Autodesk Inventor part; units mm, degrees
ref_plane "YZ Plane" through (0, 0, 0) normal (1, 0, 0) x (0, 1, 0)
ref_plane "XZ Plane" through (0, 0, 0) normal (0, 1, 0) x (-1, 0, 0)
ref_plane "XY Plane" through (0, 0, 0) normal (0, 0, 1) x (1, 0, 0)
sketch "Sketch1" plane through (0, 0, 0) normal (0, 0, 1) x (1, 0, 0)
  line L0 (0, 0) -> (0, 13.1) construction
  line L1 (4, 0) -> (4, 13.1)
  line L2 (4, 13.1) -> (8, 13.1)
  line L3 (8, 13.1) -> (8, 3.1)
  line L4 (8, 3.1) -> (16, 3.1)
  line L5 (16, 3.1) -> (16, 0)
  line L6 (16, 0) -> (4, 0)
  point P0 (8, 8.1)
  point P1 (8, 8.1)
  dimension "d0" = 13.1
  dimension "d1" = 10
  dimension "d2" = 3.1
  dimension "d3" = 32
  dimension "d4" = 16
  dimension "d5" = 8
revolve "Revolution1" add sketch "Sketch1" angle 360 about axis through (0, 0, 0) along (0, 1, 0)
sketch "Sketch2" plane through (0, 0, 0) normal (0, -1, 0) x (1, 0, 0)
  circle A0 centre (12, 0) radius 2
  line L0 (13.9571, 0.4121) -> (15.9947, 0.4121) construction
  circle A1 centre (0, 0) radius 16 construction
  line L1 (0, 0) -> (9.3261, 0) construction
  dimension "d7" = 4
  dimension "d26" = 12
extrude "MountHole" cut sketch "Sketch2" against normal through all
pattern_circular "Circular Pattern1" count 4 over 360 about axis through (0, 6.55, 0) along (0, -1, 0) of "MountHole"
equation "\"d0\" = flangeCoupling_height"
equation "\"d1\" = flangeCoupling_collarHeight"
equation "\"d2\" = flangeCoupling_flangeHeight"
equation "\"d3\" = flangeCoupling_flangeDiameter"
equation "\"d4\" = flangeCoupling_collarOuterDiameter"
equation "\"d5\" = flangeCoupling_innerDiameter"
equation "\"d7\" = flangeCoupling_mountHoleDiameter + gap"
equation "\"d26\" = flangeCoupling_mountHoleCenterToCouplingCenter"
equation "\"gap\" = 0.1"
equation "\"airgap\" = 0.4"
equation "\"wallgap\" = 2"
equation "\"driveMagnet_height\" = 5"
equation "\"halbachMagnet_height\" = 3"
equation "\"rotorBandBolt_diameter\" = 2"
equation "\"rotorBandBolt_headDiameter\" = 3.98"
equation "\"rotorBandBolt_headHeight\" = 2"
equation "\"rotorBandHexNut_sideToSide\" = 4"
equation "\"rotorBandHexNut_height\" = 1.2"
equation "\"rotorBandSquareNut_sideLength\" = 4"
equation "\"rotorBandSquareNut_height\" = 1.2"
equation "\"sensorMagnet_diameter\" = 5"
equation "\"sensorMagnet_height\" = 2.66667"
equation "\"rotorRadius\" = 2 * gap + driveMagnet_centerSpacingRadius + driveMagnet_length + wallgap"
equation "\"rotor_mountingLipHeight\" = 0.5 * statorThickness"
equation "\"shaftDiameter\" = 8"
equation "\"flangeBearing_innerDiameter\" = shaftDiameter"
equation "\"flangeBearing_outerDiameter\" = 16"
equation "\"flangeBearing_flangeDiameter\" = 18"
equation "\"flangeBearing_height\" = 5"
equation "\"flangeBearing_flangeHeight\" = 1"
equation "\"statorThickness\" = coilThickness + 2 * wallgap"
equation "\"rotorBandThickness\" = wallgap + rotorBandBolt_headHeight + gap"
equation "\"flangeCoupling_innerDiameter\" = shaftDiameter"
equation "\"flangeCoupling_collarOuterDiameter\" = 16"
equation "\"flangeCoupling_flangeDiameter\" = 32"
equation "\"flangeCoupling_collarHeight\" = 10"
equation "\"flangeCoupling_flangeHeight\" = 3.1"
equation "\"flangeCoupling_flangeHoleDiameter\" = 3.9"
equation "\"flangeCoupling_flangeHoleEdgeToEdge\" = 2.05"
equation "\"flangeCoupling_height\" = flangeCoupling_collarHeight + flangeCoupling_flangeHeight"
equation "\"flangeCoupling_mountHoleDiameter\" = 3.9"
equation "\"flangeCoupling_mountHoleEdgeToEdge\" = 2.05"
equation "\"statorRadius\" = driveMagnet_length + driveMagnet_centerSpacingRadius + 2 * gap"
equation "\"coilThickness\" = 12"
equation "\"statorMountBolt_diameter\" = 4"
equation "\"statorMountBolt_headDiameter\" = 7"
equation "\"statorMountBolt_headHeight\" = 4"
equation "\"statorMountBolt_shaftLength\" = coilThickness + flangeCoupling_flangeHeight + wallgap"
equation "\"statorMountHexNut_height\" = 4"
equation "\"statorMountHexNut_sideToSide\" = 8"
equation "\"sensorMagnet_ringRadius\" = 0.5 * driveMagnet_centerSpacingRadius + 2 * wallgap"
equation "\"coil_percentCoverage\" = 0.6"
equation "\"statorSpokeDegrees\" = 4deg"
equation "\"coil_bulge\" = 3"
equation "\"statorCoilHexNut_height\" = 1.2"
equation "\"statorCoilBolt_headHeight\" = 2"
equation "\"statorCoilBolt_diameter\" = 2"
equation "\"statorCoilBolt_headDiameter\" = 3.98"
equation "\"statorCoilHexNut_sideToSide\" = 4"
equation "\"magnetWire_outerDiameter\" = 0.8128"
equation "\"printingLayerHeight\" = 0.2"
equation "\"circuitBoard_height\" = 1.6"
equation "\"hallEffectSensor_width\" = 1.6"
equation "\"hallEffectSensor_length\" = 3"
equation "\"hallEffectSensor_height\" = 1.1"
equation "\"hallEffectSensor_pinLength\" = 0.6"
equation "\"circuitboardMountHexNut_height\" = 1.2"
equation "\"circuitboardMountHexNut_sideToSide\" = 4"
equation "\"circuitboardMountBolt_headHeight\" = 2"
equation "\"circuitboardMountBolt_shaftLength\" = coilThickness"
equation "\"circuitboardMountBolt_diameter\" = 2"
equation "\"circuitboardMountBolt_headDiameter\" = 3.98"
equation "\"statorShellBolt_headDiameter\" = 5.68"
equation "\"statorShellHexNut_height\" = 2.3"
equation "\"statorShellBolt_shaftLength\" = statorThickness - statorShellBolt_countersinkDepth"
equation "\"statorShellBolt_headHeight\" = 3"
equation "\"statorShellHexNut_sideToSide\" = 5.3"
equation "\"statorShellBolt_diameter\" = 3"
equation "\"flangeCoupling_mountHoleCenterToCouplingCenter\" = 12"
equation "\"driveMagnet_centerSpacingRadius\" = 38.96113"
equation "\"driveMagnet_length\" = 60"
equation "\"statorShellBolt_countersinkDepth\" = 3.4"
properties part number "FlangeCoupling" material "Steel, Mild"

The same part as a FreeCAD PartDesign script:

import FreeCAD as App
import Part
import Sketcher


def add_polygon(sketch, points):
    """Adds a closed chain of lines whose ends are joined by coincident constraints."""
    first, n = sketch.GeometryCount, len(points)
    for a, b in zip(points, points[1:] + points[:1]):
        sketch.addGeometry(Part.LineSegment(App.Vector(*a, 0), App.Vector(*b, 0)), False)
    for i in range(n):
        sketch.addConstraint(Sketcher.Constraint("Coincident", first + i, 2, first + (i + 1) % n, 1))

doc = App.newDocument("Part")
body = doc.addObject("PartDesign::Body", "Body")

sketch1 = body.newObject("Sketcher::SketchObject", "Sketch")
sketch1.AttachmentSupport = (doc.getObject("XY_Plane"), [""])
sketch1.MapMode = "FlatFace"
add_polygon(sketch1, [(4, 13.1), (4, 0), (16, 0), (16, 3.1), (8, 3.1), (8, 13.1)])
sketch1.addConstraint(Sketcher.Constraint("Vertical", 0))
sketch1.addConstraint(Sketcher.Constraint("Horizontal", 1))
sketch1.addConstraint(Sketcher.Constraint("Vertical", 2))
sketch1.addConstraint(Sketcher.Constraint("Horizontal", 3))
sketch1.addConstraint(Sketcher.Constraint("Vertical", 4))
sketch1.addConstraint(Sketcher.Constraint("Horizontal", 5))
sketch1.addConstraint(Sketcher.Constraint("PointOnObject", 0, 2, -1))
sketch1.addConstraint(Sketcher.Constraint("DistanceX", 3, 2, 3, 1, 8.0))
sketch1.addConstraint(Sketcher.Constraint("DistanceY", 4, 1, 4, 2, 10.0))
sketch1.addConstraint(Sketcher.Constraint("DistanceY", 0, 2, 0, 1, 13.1))
sketch1.addConstraint(Sketcher.Constraint("DistanceX", -1, 1, 1, 2, 16.0))
sketch1.addConstraint(Sketcher.Constraint("DistanceX", 1, 1, 1, 2, 12.0))
revolution = body.newObject("PartDesign::Revolution", "Revolution")
revolution.Profile = sketch1
revolution.ReferenceAxis = (sketch1, ["V_Axis"])
revolution.Angle = 360

sketch2 = body.newObject("Sketcher::SketchObject", "Sketch001")
sketch2.AttachmentSupport = (doc.getObject("XZ_Plane"), [""])
sketch2.MapMode = "FlatFace"
sketch2.addGeometry(Part.Circle(App.Vector(12, 0, 0), App.Vector(0, 0, 1), 2), False)
sketch2.addConstraint(Sketcher.Constraint("PointOnObject", 0, 3, -1))
sketch2.addConstraint(Sketcher.Constraint("Diameter", 0, 4.0))
sketch2.addConstraint(Sketcher.Constraint("DistanceX", -1, 1, 0, 3, 12.0))
pocket1 = body.newObject("PartDesign::Pocket", "Pocket")
pocket1.Profile = sketch2
pocket1.Type = "ThroughAll"
doc.recompute()

polarpattern = body.newObject("PartDesign::PolarPattern", "PolarPattern")
polarpattern.Originals = [pocket1]
polarpattern.Axis = (doc.getObject("Y_Axis"), [""])
polarpattern.Angle = 360
polarpattern.Occurrences = 4
body.Tip = polarpattern

doc.recompute()
